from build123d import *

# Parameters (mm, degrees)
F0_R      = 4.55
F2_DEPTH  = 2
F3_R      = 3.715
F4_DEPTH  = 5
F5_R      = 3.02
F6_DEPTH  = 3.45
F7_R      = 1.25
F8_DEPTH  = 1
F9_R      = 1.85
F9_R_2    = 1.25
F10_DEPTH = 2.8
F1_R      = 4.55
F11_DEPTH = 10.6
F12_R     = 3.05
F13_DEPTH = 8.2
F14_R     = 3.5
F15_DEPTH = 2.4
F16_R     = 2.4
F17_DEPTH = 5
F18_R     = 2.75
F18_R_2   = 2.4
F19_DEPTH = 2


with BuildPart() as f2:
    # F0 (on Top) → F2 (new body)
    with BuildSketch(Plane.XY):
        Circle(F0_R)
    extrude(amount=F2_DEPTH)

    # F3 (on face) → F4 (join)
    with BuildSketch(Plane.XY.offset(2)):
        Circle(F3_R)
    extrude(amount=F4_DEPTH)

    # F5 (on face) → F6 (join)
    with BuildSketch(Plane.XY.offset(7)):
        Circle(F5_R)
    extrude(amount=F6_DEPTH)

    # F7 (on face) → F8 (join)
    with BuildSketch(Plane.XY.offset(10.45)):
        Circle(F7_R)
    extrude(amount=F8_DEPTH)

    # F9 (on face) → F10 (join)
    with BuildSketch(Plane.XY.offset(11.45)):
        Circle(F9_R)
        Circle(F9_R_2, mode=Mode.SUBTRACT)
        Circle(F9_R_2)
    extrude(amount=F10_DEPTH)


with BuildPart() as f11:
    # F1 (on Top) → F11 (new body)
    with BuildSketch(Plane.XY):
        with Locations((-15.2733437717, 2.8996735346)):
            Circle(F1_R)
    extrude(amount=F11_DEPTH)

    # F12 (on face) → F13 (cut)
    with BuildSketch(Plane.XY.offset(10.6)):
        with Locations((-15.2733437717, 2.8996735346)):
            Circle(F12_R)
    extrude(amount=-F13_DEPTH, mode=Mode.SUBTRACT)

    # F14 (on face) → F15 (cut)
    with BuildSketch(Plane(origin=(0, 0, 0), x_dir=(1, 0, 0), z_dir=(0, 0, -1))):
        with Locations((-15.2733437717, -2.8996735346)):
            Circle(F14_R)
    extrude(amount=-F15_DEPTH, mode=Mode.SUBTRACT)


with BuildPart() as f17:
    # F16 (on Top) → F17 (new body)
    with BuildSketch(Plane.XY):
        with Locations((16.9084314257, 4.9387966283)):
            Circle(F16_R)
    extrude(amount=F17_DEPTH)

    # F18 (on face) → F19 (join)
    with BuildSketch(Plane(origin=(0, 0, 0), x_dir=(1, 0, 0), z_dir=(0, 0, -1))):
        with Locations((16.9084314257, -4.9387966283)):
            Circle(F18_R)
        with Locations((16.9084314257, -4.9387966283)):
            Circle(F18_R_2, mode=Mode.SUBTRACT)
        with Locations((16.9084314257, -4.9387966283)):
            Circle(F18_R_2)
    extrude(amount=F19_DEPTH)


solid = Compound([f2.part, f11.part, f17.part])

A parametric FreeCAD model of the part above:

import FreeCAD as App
import Part
import Sketcher

doc = App.newDocument("Part")
body = doc.addObject("PartDesign::Body", "Body")

# Sketch on XY plane
sketch1 = body.newObject("Sketcher::SketchObject", "Sketch")
sketch1.AttachmentSupport = (doc.getObject("XY_Plane"), [""])
sketch1.MapMode = "FlatFace"
sketch1.addGeometry(Part.Circle(App.Vector(0, 0, 0), App.Vector(0, 0, 1), 4.5), False)
sketch1.addConstraint([
    Sketcher.Constraint("Coincident", 0, 3, -1, 1),
    Sketcher.Constraint("Diameter", 0, 9.1),
])
pad1 = body.newObject("PartDesign::Pad", "Pad")
pad1.Profile = sketch1
pad1.Length = 2

# Sketch on XY plane
sketch2 = body.newObject("Sketcher::SketchObject", "Sketch001")
sketch2.AttachmentSupport = (doc.getObject("XY_Plane"), [""])
sketch2.MapMode = "FlatFace"
sketch2.AttachmentOffset = App.Placement(App.Vector(0, 0, 2), App.Rotation())
sketch2.addGeometry(Part.Circle(App.Vector(0, 0, 0), App.Vector(0, 0, 1), 3.7), False)
sketch2.addConstraint([
    Sketcher.Constraint("Coincident", 0, 3, -1, 1),
    Sketcher.Constraint("Diameter", 0, 7.43),
])
pad2 = body.newObject("PartDesign::Pad", "Pad001")
pad2.Profile = sketch2
pad2.Length = 5

# Sketch on XY plane
sketch3 = body.newObject("Sketcher::SketchObject", "Sketch002")
sketch3.AttachmentSupport = (doc.getObject("XY_Plane"), [""])
sketch3.MapMode = "FlatFace"
sketch3.AttachmentOffset = App.Placement(App.Vector(0, 0, 7), App.Rotation())
sketch3.addGeometry(Part.Circle(App.Vector(0, 0, 0), App.Vector(0, 0, 1), 3), False)
sketch3.addConstraint([
    Sketcher.Constraint("Coincident", 0, 3, -1, 1),
    Sketcher.Constraint("Diameter", 0, 6.04),
])
pad3 = body.newObject("PartDesign::Pad", "Pad002")
pad3.Profile = sketch3
pad3.Length = 3.45

# Sketch on XY plane
sketch4 = body.newObject("Sketcher::SketchObject", "Sketch003")
sketch4.AttachmentSupport = (doc.getObject("XY_Plane"), [""])
sketch4.MapMode = "FlatFace"
sketch4.AttachmentOffset = App.Placement(App.Vector(0, 0, 10.45), App.Rotation())
sketch4.addGeometry(Part.Circle(App.Vector(0, 0, 0), App.Vector(0, 0, 1), 1.2), False)
sketch4.addConstraint([
    Sketcher.Constraint("Coincident", 0, 3, -1, 1),
    Sketcher.Constraint("Diameter", 0, 2.5),
])
pad4 = body.newObject("PartDesign::Pad", "Pad003")
pad4.Profile = sketch4
pad4.Length = 1

# Sketch on XY plane
sketch5 = body.newObject("Sketcher::SketchObject", "Sketch004")
sketch5.AttachmentSupport = (doc.getObject("XY_Plane"), [""])
sketch5.MapMode = "FlatFace"
sketch5.AttachmentOffset = App.Placement(App.Vector(0, 0, 11.45), App.Rotation())
sketch5.addGeometry(Part.Circle(App.Vector(0, 0, 0), App.Vector(0, 0, 1), 1.9), False)
sketch5.addConstraint([
    Sketcher.Constraint("Coincident", 0, 3, -1, 1),
    Sketcher.Constraint("Diameter", 0, 3.7),
])
pad5 = body.newObject("PartDesign::Pad", "Pad004")
pad5.Profile = sketch5
pad5.Length = 2.8
body2 = doc.addObject("PartDesign::Body", "Body001")

# Sketch on XY plane
sketch6 = body2.newObject("Sketcher::SketchObject", "Sketch005")
sketch6.AttachmentSupport = (doc.getObject("XY_Plane001"), [""])
sketch6.MapMode = "FlatFace"
sketch6.addGeometry(Part.Circle(App.Vector(-15.3, 2.9, 0), App.Vector(0, 0, 1), 4.5), False)
sketch6.addConstraint([
    Sketcher.Constraint("Diameter", 0, 9.1),
    Sketcher.Constraint("DistanceX", 0, 3, -1, 1, 15.273344),
    Sketcher.Constraint("DistanceY", -1, 1, 0, 3, 2.899674),
])
pad6 = body2.newObject("PartDesign::Pad", "Pad005")
pad6.Profile = sketch6
pad6.Length = 10.6

# Sketch on XY plane
sketch7 = body2.newObject("Sketcher::SketchObject", "Sketch006")
sketch7.AttachmentSupport = (doc.getObject("XY_Plane001"), [""])
sketch7.MapMode = "FlatFace"
sketch7.AttachmentOffset = App.Placement(App.Vector(0, 0, 10.6), App.Rotation())
sketch7.addGeometry(Part.Circle(App.Vector(-15.3, 2.9, 0), App.Vector(0, 0, 1), 3), False)
sketch7.addConstraint([
    Sketcher.Constraint("Diameter", 0, 6.1),
    Sketcher.Constraint("DistanceX", 0, 3, -1, 1, 15.273344),
    Sketcher.Constraint("DistanceY", -1, 1, 0, 3, 2.899674),
])
pocket1 = body2.newObject("PartDesign::Pocket", "Pocket")
pocket1.Profile = sketch7
pocket1.Length = 8.2

# Sketch on XY plane
sketch8 = body2.newObject("Sketcher::SketchObject", "Sketch007")
sketch8.AttachmentSupport = (doc.getObject("XY_Plane001"), [""])
sketch8.MapMode = "FlatFace"
sketch8.addGeometry(Part.Circle(App.Vector(-15.3, 2.9, 0), App.Vector(0, 0, 1), 3.5), False)
sketch8.addConstraint([
    Sketcher.Constraint("Diameter", 0, 7.0),
    Sketcher.Constraint("DistanceX", 0, 3, -1, 1, 15.273344),
    Sketcher.Constraint("DistanceY", -1, 1, 0, 3, 2.899674),
])
pocket2 = body2.newObject("PartDesign::Pocket", "Pocket001")
pocket2.Profile = sketch8
pocket2.Length = 2.4
pocket2.Reversed = True
body3 = doc.addObject("PartDesign::Body", "Body002")

# Sketch on XY plane
sketch9 = body3.newObject("Sketcher::SketchObject", "Sketch008")
sketch9.AttachmentSupport = (doc.getObject("XY_Plane002"), [""])
sketch9.MapMode = "FlatFace"
sketch9.addGeometry(Part.Circle(App.Vector(16.9, 4.9, 0), App.Vector(0, 0, 1), 2.4), False)
sketch9.addConstraint([
    Sketcher.Constraint("Diameter", 0, 4.8),
    Sketcher.Constraint("DistanceX", -1, 1, 0, 3, 16.908431),
    Sketcher.Constraint("DistanceY", -1, 1, 0, 3, 4.938797),
])
pad7 = body3.newObject("PartDesign::Pad", "Pad006")
pad7.Profile = sketch9
pad7.Length = 5

# Sketch on XY plane
sketch10 = body3.newObject("Sketcher::SketchObject", "Sketch009")
sketch10.AttachmentSupport = (doc.getObject("XY_Plane002"), [""])
sketch10.MapMode = "FlatFace"
sketch10.addGeometry(Part.Circle(App.Vector(16.9, 4.9, 0), App.Vector(0, 0, 1), 2.8), False)
sketch10.addConstraint([
    Sketcher.Constraint("Diameter", 0, 5.5),
    Sketcher.Constraint("DistanceX", -1, 1, 0, 3, 16.908431),
    Sketcher.Constraint("DistanceY", -1, 1, 0, 3, 4.938797),
])
pad8 = body3.newObject("PartDesign::Pad", "Pad007")
pad8.Profile = sketch10
pad8.Length = 2
pad8.Reversed = True

doc.recompute()
